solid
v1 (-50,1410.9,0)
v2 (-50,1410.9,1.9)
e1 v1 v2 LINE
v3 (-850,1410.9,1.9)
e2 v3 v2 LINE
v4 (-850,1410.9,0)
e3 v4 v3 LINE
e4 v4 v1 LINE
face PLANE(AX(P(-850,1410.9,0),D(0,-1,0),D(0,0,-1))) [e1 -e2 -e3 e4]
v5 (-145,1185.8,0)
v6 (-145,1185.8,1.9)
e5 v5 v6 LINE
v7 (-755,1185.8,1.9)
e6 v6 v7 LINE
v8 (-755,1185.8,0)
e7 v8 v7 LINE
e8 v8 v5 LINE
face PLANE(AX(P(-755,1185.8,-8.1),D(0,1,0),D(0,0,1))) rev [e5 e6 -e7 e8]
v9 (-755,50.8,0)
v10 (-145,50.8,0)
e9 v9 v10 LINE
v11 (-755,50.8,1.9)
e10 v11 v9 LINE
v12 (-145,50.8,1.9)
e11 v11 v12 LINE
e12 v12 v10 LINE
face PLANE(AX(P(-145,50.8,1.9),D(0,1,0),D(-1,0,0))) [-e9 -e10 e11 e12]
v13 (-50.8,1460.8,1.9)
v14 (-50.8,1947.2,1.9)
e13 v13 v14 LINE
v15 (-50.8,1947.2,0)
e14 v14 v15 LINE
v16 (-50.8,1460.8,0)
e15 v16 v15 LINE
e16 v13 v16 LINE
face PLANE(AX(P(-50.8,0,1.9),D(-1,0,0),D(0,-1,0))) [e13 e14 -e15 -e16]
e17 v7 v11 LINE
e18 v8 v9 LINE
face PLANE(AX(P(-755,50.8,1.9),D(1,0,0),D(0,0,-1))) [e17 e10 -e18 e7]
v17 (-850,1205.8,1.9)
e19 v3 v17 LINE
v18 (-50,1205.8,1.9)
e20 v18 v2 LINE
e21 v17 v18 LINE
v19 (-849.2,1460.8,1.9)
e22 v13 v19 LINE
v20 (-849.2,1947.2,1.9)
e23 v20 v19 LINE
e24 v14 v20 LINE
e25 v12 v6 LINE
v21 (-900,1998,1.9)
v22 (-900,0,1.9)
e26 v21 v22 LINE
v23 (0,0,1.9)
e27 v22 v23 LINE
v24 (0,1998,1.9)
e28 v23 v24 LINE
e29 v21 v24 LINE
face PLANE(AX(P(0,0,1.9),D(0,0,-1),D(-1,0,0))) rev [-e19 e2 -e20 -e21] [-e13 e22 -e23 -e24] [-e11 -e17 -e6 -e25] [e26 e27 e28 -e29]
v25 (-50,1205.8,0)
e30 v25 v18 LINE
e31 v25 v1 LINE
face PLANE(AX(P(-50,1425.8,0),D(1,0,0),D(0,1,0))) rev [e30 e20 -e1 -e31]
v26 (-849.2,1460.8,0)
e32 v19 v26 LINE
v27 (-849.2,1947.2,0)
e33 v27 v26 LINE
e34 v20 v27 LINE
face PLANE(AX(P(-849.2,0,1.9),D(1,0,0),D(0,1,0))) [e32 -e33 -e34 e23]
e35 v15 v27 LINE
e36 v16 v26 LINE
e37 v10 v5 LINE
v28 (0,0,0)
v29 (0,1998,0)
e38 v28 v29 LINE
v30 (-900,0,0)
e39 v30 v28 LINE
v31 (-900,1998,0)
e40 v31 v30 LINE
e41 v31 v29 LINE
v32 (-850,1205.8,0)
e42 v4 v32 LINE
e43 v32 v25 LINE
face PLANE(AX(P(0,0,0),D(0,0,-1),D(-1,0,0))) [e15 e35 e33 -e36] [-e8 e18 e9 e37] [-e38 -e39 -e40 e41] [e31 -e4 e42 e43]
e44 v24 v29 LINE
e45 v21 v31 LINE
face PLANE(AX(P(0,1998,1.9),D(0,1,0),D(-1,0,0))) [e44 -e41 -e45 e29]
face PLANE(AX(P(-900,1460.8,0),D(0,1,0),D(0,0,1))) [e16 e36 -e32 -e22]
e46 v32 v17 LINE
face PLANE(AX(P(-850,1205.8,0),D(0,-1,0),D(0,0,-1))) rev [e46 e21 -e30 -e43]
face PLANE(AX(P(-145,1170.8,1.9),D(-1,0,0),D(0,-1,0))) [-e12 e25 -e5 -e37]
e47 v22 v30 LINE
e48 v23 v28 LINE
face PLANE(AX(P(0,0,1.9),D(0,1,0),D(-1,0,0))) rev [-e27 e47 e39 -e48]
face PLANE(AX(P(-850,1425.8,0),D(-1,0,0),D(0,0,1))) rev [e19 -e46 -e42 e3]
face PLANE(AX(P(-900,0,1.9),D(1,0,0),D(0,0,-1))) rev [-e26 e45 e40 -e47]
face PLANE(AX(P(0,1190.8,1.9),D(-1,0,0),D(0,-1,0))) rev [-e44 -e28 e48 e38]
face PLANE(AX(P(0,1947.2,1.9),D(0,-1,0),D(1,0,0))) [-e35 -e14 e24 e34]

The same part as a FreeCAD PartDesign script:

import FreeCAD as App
import Part
import Sketcher
from FreeCAD import Vector


def add_polygon(sketch, points):
    """Adds a closed chain of lines whose ends are joined by coincident constraints."""
    first, n = sketch.GeometryCount, len(points)
    for a, b in zip(points, points[1:] + points[:1]):
        sketch.addGeometry(Part.LineSegment(App.Vector(*a, 0), App.Vector(*b, 0)), False)
    for i in range(n):
        sketch.addConstraint(Sketcher.Constraint("Coincident", first + i, 2, first + (i + 1) % n, 1))

doc = App.newDocument("Part")
params = doc.addObject("Spreadsheet::Sheet", "Params")
for row, (alias, value) in enumerate([
    ("sketch1_width", "900 mm"),
    ("sketch1_width2", "610 mm"),
    ("sketch1_height", "1120 mm"),
    ("sketch1_height2", "1190.8 mm"),
    ("pad1_length", "1.9 mm"),
    ("sketch2_width", "900 mm"),
    ("sketch2_height", "270 mm"),
    ("pad2_length", "1.9 mm"),
    ("sketch3_width", "800 mm"),
    ("sketch3_height", "220 mm"),
    ("pocket1_length", "1.9 mm"),
    ("sketch4_width", "610 mm"),
    ("sketch4_height", "15 mm"),
    ("pocket2_length", "10 mm"),
    ("sketch5_width", "800 mm"),
    ("sketch5_height", "14.9 mm"),
    ("pad3_length", "1.9 mm"),
    ("sketch6_width", "900 mm"),
    ("sketch6_width2", "50.8 mm"),
    ("sketch6_height", "537.2 mm"),
    ("sketch6_height2", "486.4 mm"),
    ("pad4_length", "1.9 mm"),
], start=1):
    params.set(f"A{row}", alias)
    params.set(f"B{row}", "=" + value)
    params.setAlias(f"B{row}", alias)

body = doc.addObject("PartDesign::Body", "Body")

sketch1 = body.newObject("Sketcher::SketchObject", "Sketch")
sketch1.AttachmentSupport = (doc.getObject("XY_Plane"), [""])
sketch1.MapMode = "FlatFace"
add_polygon(sketch1, [(-900, 1190.8), (-900, 0), (0, 0), (0, 1190.8)])
add_polygon(sketch1, [(-145, 50.8), (-755, 50.8), (-755, 1170.8), (-145, 1170.8)])
sketch1.addConstraint(Sketcher.Constraint("Vertical", 0))
sketch1.addConstraint(Sketcher.Constraint("Horizontal", 1))
sketch1.addConstraint(Sketcher.Constraint("Vertical", 2))
sketch1.addConstraint(Sketcher.Constraint("Horizontal", 3))
sketch1.addConstraint(Sketcher.Constraint("Horizontal", 4))
sketch1.addConstraint(Sketcher.Constraint("Vertical", 5))
sketch1.addConstraint(Sketcher.Constraint("Horizontal", 6))
sketch1.addConstraint(Sketcher.Constraint("Vertical", 7))
sketch1.addConstraint(Sketcher.Constraint("Coincident", 1, 2, -1, 1))
sketch1.addConstraint(Sketcher.Constraint("DistanceX", 1, 1, 1, 2, 900.0))
sketch1.addConstraint(Sketcher.Constraint("DistanceX", 4, 2, 4, 1, 610.0))
sketch1.addConstraint(Sketcher.Constraint("DistanceY", 5, 1, 5, 2, 1120.0))
sketch1.addConstraint(Sketcher.Constraint("DistanceY", 0, 2, 0, 1, 1190.8))
sketch1.addConstraint(Sketcher.Constraint("DistanceX", 4, 2, -1, 1, 755.0))
sketch1.addConstraint(Sketcher.Constraint("DistanceY", 4, 2, 3, 2, 1140.0))
sketch1.setExpression("Constraints[17]", "Params.sketch1_width")
sketch1.setExpression("Constraints[18]", "Params.sketch1_width2")
sketch1.setExpression("Constraints[19]", "Params.sketch1_height")
sketch1.setExpression("Constraints[20]", "Params.sketch1_height2")
pad1 = body.newObject("PartDesign::Pad", "Pad")
pad1.Profile = sketch1
pad1.setExpression("Length", "Params.pad1_length")

sketch2 = body.newObject("Sketcher::SketchObject", "Sketch001")
sketch2.AttachmentSupport = (doc.getObject("XY_Plane"), [""])
sketch2.MapMode = "FlatFace"
sketch2.AttachmentOffset = App.Placement(Vector(0, 0, 1.9), App.Rotation())
add_polygon(sketch2, [(-900, 1460.8), (-900, 1190.8), (0, 1190.8), (0, 1460.8)])
sketch2.addConstraint(Sketcher.Constraint("Vertical", 0))
sketch2.addConstraint(Sketcher.Constraint("Horizontal", 1))
sketch2.addConstraint(Sketcher.Constraint("Vertical", 2))
sketch2.addConstraint(Sketcher.Constraint("Horizontal", 3))
sketch2.addConstraint(Sketcher.Constraint("PointOnObject", 1, 2, -2))
sketch2.addConstraint(Sketcher.Constraint("DistanceX", 1, 1, 1, 2, 900.0))
sketch2.addConstraint(Sketcher.Constraint("DistanceY", 0, 2, 0, 1, 270.0))
sketch2.addConstraint(Sketcher.Constraint("DistanceY", -1, 1, 0, 2, 1190.8))
sketch2.setExpression("Constraints[9]", "Params.sketch2_width")
sketch2.setExpression("Constraints[10]", "Params.sketch2_height")
pad2 = body.newObject("PartDesign::Pad", "Pad001")
pad2.Profile = sketch2
pad2.setExpression("Length", "Params.pad2_length")
pad2.Reversed = True

sketch3 = body.newObject("Sketcher::SketchObject", "Sketch002")
sketch3.AttachmentSupport = (doc.getObject("XY_Plane"), [""])
sketch3.MapMode = "FlatFace"
sketch3.AttachmentOffset = App.Placement(Vector(0, 0, 1.9), App.Rotation())
add_polygon(sketch3, [(-850, 1425.8), (-850, 1205.8), (-50, 1205.8), (-50, 1425.8)])
sketch3.addConstraint(Sketcher.Constraint("Vertical", 0))
sketch3.addConstraint(Sketcher.Constraint("Horizontal", 1))
sketch3.addConstraint(Sketcher.Constraint("Vertical", 2))
sketch3.addConstraint(Sketcher.Constraint("Horizontal", 3))
sketch3.addConstraint(Sketcher.Constraint("DistanceX", 1, 1, 1, 2, 800.0))
sketch3.addConstraint(Sketcher.Constraint("DistanceY", 0, 2, 0, 1, 220.0))
sketch3.addConstraint(Sketcher.Constraint("DistanceX", 0, 2, -1, 1, 850.0))
sketch3.addConstraint(Sketcher.Constraint("DistanceY", -1, 1, 0, 2, 1205.8))
sketch3.setExpression("Constraints[8]", "Params.sketch3_width")
sketch3.setExpression("Constraints[9]", "Params.sketch3_height")
pocket1 = body.newObject("PartDesign::Pocket", "Pocket")
pocket1.Profile = sketch3
pocket1.setExpression("Length", "Params.pocket1_length")

sketch4 = body.newObject("Sketcher::SketchObject", "Sketch003")
sketch4.AttachmentSupport = (doc.getObject("XY_Plane"), [""])
sketch4.MapMode = "FlatFace"
sketch4.AttachmentOffset = App.Placement(Vector(0, 0, 1.9), App.Rotation())
add_polygon(sketch4, [(-755, 1185.8), (-755, 1170.8), (-145, 1170.8), (-145, 1185.8)])
sketch4.addConstraint(Sketcher.Constraint("Vertical", 0))
sketch4.addConstraint(Sketcher.Constraint("Horizontal", 1))
sketch4.addConstraint(Sketcher.Constraint("Vertical", 2))
sketch4.addConstraint(Sketcher.Constraint("Horizontal", 3))
sketch4.addConstraint(Sketcher.Constraint("DistanceX", 1, 1, 1, 2, 610.0))
sketch4.addConstraint(Sketcher.Constraint("DistanceY", 0, 2, 0, 1, 15.0))
sketch4.addConstraint(Sketcher.Constraint("DistanceX", 0, 2, -1, 1, 755.0))
sketch4.addConstraint(Sketcher.Constraint("DistanceY", -1, 1, 0, 2, 1170.8))
sketch4.setExpression("Constraints[8]", "Params.sketch4_width")
sketch4.setExpression("Constraints[9]", "Params.sketch4_height")
pocket2 = body.newObject("PartDesign::Pocket", "Pocket001")
pocket2.Profile = sketch4
pocket2.setExpression("Length", "Params.pocket2_length")

sketch5 = body.newObject("Sketcher::SketchObject", "Sketch004")
sketch5.AttachmentSupport = (doc.getObject("XY_Plane"), [""])
sketch5.MapMode = "FlatFace"
sketch5.AttachmentOffset = App.Placement(Vector(0, 0, 1.9), App.Rotation())
add_polygon(sketch5, [(-850, 1425.8), (-850, 1410.9), (-50, 1410.9), (-50, 1425.8)])
sketch5.addConstraint(Sketcher.Constraint("Vertical", 0))
sketch5.addConstraint(Sketcher.Constraint("Horizontal", 1))
sketch5.addConstraint(Sketcher.Constraint("Vertical", 2))
sketch5.addConstraint(Sketcher.Constraint("Horizontal", 3))
sketch5.addConstraint(Sketcher.Constraint("DistanceX", 1, 1, 1, 2, 800.0))
sketch5.addConstraint(Sketcher.Constraint("DistanceY", 0, 2, 0, 1, 14.9))
sketch5.addConstraint(Sketcher.Constraint("DistanceX", 0, 2, -1, 1, 850.0))
sketch5.addConstraint(Sketcher.Constraint("DistanceY", -1, 1, 0, 2, 1410.9))
sketch5.setExpression("Constraints[8]", "Params.sketch5_width")
sketch5.setExpression("Constraints[9]", "Params.sketch5_height")
pad3 = body.newObject("PartDesign::Pad", "Pad002")
pad3.Profile = sketch5
pad3.setExpression("Length", "Params.pad3_length")
pad3.Reversed = True

sketch6 = body.newObject("Sketcher::SketchObject", "Sketch005")
sketch6.AttachmentSupport = (doc.getObject("XY_Plane"), [""])
sketch6.MapMode = "FlatFace"
add_polygon(sketch6, [(0, 1998), (0, 1460.8), (-50.8, 1460.8), (-50.8, 1947.2), (-849.2, 1947.2), (-849.2, 1460.8), (-900, 1460.8), (-900, 1998)])
sketch6.addConstraint(Sketcher.Constraint("Vertical", 0))
sketch6.addConstraint(Sketcher.Constraint("Horizontal", 1))
sketch6.addConstraint(Sketcher.Constraint("Vertical", 2))
sketch6.addConstraint(Sketcher.Constraint("Horizontal", 3))
sketch6.addConstraint(Sketcher.Constraint("Vertical", 4))
sketch6.addConstraint(Sketcher.Constraint("Horizontal", 5))
sketch6.addConstraint(Sketcher.Constraint("Vertical", 6))
sketch6.addConstraint(Sketcher.Constraint("Horizontal", 7))
sketch6.addConstraint(Sketcher.Constraint("PointOnObject", 0, 2, -2))
sketch6.addConstraint(Sketcher.Constraint("Horizontal", 1, 2, 4, 2))
sketch6.addConstraint(Sketcher.Constraint("Equal", 1, 5))
sketch6.addConstraint(Sketcher.Constraint("DistanceX", 7, 1, 7, 2, 900.0))
sketch6.addConstraint(Sketcher.Constraint("DistanceX", 1, 2, 1, 1, 50.8))
sketch6.addConstraint(Sketcher.Constraint("DistanceY", 0, 2, 0, 1, 537.2))
sketch6.addConstraint(Sketcher.Constraint("DistanceY", 2, 1, 2, 2, 486.4))
sketch6.addConstraint(Sketcher.Constraint("DistanceY", -1, 1, 6, 2, 1998.0))
sketch6.setExpression("Constraints[19]", "Params.sketch6_width")
sketch6.setExpression("Constraints[20]", "Params.sketch6_width2")
sketch6.setExpression("Constraints[21]", "Params.sketch6_height")
sketch6.setExpression("Constraints[22]", "Params.sketch6_height2")
pad4 = body.newObject("PartDesign::Pad", "Pad003")
pad4.Profile = sketch6
pad4.setExpression("Length", "Params.pad4_length")

doc.recompute()
